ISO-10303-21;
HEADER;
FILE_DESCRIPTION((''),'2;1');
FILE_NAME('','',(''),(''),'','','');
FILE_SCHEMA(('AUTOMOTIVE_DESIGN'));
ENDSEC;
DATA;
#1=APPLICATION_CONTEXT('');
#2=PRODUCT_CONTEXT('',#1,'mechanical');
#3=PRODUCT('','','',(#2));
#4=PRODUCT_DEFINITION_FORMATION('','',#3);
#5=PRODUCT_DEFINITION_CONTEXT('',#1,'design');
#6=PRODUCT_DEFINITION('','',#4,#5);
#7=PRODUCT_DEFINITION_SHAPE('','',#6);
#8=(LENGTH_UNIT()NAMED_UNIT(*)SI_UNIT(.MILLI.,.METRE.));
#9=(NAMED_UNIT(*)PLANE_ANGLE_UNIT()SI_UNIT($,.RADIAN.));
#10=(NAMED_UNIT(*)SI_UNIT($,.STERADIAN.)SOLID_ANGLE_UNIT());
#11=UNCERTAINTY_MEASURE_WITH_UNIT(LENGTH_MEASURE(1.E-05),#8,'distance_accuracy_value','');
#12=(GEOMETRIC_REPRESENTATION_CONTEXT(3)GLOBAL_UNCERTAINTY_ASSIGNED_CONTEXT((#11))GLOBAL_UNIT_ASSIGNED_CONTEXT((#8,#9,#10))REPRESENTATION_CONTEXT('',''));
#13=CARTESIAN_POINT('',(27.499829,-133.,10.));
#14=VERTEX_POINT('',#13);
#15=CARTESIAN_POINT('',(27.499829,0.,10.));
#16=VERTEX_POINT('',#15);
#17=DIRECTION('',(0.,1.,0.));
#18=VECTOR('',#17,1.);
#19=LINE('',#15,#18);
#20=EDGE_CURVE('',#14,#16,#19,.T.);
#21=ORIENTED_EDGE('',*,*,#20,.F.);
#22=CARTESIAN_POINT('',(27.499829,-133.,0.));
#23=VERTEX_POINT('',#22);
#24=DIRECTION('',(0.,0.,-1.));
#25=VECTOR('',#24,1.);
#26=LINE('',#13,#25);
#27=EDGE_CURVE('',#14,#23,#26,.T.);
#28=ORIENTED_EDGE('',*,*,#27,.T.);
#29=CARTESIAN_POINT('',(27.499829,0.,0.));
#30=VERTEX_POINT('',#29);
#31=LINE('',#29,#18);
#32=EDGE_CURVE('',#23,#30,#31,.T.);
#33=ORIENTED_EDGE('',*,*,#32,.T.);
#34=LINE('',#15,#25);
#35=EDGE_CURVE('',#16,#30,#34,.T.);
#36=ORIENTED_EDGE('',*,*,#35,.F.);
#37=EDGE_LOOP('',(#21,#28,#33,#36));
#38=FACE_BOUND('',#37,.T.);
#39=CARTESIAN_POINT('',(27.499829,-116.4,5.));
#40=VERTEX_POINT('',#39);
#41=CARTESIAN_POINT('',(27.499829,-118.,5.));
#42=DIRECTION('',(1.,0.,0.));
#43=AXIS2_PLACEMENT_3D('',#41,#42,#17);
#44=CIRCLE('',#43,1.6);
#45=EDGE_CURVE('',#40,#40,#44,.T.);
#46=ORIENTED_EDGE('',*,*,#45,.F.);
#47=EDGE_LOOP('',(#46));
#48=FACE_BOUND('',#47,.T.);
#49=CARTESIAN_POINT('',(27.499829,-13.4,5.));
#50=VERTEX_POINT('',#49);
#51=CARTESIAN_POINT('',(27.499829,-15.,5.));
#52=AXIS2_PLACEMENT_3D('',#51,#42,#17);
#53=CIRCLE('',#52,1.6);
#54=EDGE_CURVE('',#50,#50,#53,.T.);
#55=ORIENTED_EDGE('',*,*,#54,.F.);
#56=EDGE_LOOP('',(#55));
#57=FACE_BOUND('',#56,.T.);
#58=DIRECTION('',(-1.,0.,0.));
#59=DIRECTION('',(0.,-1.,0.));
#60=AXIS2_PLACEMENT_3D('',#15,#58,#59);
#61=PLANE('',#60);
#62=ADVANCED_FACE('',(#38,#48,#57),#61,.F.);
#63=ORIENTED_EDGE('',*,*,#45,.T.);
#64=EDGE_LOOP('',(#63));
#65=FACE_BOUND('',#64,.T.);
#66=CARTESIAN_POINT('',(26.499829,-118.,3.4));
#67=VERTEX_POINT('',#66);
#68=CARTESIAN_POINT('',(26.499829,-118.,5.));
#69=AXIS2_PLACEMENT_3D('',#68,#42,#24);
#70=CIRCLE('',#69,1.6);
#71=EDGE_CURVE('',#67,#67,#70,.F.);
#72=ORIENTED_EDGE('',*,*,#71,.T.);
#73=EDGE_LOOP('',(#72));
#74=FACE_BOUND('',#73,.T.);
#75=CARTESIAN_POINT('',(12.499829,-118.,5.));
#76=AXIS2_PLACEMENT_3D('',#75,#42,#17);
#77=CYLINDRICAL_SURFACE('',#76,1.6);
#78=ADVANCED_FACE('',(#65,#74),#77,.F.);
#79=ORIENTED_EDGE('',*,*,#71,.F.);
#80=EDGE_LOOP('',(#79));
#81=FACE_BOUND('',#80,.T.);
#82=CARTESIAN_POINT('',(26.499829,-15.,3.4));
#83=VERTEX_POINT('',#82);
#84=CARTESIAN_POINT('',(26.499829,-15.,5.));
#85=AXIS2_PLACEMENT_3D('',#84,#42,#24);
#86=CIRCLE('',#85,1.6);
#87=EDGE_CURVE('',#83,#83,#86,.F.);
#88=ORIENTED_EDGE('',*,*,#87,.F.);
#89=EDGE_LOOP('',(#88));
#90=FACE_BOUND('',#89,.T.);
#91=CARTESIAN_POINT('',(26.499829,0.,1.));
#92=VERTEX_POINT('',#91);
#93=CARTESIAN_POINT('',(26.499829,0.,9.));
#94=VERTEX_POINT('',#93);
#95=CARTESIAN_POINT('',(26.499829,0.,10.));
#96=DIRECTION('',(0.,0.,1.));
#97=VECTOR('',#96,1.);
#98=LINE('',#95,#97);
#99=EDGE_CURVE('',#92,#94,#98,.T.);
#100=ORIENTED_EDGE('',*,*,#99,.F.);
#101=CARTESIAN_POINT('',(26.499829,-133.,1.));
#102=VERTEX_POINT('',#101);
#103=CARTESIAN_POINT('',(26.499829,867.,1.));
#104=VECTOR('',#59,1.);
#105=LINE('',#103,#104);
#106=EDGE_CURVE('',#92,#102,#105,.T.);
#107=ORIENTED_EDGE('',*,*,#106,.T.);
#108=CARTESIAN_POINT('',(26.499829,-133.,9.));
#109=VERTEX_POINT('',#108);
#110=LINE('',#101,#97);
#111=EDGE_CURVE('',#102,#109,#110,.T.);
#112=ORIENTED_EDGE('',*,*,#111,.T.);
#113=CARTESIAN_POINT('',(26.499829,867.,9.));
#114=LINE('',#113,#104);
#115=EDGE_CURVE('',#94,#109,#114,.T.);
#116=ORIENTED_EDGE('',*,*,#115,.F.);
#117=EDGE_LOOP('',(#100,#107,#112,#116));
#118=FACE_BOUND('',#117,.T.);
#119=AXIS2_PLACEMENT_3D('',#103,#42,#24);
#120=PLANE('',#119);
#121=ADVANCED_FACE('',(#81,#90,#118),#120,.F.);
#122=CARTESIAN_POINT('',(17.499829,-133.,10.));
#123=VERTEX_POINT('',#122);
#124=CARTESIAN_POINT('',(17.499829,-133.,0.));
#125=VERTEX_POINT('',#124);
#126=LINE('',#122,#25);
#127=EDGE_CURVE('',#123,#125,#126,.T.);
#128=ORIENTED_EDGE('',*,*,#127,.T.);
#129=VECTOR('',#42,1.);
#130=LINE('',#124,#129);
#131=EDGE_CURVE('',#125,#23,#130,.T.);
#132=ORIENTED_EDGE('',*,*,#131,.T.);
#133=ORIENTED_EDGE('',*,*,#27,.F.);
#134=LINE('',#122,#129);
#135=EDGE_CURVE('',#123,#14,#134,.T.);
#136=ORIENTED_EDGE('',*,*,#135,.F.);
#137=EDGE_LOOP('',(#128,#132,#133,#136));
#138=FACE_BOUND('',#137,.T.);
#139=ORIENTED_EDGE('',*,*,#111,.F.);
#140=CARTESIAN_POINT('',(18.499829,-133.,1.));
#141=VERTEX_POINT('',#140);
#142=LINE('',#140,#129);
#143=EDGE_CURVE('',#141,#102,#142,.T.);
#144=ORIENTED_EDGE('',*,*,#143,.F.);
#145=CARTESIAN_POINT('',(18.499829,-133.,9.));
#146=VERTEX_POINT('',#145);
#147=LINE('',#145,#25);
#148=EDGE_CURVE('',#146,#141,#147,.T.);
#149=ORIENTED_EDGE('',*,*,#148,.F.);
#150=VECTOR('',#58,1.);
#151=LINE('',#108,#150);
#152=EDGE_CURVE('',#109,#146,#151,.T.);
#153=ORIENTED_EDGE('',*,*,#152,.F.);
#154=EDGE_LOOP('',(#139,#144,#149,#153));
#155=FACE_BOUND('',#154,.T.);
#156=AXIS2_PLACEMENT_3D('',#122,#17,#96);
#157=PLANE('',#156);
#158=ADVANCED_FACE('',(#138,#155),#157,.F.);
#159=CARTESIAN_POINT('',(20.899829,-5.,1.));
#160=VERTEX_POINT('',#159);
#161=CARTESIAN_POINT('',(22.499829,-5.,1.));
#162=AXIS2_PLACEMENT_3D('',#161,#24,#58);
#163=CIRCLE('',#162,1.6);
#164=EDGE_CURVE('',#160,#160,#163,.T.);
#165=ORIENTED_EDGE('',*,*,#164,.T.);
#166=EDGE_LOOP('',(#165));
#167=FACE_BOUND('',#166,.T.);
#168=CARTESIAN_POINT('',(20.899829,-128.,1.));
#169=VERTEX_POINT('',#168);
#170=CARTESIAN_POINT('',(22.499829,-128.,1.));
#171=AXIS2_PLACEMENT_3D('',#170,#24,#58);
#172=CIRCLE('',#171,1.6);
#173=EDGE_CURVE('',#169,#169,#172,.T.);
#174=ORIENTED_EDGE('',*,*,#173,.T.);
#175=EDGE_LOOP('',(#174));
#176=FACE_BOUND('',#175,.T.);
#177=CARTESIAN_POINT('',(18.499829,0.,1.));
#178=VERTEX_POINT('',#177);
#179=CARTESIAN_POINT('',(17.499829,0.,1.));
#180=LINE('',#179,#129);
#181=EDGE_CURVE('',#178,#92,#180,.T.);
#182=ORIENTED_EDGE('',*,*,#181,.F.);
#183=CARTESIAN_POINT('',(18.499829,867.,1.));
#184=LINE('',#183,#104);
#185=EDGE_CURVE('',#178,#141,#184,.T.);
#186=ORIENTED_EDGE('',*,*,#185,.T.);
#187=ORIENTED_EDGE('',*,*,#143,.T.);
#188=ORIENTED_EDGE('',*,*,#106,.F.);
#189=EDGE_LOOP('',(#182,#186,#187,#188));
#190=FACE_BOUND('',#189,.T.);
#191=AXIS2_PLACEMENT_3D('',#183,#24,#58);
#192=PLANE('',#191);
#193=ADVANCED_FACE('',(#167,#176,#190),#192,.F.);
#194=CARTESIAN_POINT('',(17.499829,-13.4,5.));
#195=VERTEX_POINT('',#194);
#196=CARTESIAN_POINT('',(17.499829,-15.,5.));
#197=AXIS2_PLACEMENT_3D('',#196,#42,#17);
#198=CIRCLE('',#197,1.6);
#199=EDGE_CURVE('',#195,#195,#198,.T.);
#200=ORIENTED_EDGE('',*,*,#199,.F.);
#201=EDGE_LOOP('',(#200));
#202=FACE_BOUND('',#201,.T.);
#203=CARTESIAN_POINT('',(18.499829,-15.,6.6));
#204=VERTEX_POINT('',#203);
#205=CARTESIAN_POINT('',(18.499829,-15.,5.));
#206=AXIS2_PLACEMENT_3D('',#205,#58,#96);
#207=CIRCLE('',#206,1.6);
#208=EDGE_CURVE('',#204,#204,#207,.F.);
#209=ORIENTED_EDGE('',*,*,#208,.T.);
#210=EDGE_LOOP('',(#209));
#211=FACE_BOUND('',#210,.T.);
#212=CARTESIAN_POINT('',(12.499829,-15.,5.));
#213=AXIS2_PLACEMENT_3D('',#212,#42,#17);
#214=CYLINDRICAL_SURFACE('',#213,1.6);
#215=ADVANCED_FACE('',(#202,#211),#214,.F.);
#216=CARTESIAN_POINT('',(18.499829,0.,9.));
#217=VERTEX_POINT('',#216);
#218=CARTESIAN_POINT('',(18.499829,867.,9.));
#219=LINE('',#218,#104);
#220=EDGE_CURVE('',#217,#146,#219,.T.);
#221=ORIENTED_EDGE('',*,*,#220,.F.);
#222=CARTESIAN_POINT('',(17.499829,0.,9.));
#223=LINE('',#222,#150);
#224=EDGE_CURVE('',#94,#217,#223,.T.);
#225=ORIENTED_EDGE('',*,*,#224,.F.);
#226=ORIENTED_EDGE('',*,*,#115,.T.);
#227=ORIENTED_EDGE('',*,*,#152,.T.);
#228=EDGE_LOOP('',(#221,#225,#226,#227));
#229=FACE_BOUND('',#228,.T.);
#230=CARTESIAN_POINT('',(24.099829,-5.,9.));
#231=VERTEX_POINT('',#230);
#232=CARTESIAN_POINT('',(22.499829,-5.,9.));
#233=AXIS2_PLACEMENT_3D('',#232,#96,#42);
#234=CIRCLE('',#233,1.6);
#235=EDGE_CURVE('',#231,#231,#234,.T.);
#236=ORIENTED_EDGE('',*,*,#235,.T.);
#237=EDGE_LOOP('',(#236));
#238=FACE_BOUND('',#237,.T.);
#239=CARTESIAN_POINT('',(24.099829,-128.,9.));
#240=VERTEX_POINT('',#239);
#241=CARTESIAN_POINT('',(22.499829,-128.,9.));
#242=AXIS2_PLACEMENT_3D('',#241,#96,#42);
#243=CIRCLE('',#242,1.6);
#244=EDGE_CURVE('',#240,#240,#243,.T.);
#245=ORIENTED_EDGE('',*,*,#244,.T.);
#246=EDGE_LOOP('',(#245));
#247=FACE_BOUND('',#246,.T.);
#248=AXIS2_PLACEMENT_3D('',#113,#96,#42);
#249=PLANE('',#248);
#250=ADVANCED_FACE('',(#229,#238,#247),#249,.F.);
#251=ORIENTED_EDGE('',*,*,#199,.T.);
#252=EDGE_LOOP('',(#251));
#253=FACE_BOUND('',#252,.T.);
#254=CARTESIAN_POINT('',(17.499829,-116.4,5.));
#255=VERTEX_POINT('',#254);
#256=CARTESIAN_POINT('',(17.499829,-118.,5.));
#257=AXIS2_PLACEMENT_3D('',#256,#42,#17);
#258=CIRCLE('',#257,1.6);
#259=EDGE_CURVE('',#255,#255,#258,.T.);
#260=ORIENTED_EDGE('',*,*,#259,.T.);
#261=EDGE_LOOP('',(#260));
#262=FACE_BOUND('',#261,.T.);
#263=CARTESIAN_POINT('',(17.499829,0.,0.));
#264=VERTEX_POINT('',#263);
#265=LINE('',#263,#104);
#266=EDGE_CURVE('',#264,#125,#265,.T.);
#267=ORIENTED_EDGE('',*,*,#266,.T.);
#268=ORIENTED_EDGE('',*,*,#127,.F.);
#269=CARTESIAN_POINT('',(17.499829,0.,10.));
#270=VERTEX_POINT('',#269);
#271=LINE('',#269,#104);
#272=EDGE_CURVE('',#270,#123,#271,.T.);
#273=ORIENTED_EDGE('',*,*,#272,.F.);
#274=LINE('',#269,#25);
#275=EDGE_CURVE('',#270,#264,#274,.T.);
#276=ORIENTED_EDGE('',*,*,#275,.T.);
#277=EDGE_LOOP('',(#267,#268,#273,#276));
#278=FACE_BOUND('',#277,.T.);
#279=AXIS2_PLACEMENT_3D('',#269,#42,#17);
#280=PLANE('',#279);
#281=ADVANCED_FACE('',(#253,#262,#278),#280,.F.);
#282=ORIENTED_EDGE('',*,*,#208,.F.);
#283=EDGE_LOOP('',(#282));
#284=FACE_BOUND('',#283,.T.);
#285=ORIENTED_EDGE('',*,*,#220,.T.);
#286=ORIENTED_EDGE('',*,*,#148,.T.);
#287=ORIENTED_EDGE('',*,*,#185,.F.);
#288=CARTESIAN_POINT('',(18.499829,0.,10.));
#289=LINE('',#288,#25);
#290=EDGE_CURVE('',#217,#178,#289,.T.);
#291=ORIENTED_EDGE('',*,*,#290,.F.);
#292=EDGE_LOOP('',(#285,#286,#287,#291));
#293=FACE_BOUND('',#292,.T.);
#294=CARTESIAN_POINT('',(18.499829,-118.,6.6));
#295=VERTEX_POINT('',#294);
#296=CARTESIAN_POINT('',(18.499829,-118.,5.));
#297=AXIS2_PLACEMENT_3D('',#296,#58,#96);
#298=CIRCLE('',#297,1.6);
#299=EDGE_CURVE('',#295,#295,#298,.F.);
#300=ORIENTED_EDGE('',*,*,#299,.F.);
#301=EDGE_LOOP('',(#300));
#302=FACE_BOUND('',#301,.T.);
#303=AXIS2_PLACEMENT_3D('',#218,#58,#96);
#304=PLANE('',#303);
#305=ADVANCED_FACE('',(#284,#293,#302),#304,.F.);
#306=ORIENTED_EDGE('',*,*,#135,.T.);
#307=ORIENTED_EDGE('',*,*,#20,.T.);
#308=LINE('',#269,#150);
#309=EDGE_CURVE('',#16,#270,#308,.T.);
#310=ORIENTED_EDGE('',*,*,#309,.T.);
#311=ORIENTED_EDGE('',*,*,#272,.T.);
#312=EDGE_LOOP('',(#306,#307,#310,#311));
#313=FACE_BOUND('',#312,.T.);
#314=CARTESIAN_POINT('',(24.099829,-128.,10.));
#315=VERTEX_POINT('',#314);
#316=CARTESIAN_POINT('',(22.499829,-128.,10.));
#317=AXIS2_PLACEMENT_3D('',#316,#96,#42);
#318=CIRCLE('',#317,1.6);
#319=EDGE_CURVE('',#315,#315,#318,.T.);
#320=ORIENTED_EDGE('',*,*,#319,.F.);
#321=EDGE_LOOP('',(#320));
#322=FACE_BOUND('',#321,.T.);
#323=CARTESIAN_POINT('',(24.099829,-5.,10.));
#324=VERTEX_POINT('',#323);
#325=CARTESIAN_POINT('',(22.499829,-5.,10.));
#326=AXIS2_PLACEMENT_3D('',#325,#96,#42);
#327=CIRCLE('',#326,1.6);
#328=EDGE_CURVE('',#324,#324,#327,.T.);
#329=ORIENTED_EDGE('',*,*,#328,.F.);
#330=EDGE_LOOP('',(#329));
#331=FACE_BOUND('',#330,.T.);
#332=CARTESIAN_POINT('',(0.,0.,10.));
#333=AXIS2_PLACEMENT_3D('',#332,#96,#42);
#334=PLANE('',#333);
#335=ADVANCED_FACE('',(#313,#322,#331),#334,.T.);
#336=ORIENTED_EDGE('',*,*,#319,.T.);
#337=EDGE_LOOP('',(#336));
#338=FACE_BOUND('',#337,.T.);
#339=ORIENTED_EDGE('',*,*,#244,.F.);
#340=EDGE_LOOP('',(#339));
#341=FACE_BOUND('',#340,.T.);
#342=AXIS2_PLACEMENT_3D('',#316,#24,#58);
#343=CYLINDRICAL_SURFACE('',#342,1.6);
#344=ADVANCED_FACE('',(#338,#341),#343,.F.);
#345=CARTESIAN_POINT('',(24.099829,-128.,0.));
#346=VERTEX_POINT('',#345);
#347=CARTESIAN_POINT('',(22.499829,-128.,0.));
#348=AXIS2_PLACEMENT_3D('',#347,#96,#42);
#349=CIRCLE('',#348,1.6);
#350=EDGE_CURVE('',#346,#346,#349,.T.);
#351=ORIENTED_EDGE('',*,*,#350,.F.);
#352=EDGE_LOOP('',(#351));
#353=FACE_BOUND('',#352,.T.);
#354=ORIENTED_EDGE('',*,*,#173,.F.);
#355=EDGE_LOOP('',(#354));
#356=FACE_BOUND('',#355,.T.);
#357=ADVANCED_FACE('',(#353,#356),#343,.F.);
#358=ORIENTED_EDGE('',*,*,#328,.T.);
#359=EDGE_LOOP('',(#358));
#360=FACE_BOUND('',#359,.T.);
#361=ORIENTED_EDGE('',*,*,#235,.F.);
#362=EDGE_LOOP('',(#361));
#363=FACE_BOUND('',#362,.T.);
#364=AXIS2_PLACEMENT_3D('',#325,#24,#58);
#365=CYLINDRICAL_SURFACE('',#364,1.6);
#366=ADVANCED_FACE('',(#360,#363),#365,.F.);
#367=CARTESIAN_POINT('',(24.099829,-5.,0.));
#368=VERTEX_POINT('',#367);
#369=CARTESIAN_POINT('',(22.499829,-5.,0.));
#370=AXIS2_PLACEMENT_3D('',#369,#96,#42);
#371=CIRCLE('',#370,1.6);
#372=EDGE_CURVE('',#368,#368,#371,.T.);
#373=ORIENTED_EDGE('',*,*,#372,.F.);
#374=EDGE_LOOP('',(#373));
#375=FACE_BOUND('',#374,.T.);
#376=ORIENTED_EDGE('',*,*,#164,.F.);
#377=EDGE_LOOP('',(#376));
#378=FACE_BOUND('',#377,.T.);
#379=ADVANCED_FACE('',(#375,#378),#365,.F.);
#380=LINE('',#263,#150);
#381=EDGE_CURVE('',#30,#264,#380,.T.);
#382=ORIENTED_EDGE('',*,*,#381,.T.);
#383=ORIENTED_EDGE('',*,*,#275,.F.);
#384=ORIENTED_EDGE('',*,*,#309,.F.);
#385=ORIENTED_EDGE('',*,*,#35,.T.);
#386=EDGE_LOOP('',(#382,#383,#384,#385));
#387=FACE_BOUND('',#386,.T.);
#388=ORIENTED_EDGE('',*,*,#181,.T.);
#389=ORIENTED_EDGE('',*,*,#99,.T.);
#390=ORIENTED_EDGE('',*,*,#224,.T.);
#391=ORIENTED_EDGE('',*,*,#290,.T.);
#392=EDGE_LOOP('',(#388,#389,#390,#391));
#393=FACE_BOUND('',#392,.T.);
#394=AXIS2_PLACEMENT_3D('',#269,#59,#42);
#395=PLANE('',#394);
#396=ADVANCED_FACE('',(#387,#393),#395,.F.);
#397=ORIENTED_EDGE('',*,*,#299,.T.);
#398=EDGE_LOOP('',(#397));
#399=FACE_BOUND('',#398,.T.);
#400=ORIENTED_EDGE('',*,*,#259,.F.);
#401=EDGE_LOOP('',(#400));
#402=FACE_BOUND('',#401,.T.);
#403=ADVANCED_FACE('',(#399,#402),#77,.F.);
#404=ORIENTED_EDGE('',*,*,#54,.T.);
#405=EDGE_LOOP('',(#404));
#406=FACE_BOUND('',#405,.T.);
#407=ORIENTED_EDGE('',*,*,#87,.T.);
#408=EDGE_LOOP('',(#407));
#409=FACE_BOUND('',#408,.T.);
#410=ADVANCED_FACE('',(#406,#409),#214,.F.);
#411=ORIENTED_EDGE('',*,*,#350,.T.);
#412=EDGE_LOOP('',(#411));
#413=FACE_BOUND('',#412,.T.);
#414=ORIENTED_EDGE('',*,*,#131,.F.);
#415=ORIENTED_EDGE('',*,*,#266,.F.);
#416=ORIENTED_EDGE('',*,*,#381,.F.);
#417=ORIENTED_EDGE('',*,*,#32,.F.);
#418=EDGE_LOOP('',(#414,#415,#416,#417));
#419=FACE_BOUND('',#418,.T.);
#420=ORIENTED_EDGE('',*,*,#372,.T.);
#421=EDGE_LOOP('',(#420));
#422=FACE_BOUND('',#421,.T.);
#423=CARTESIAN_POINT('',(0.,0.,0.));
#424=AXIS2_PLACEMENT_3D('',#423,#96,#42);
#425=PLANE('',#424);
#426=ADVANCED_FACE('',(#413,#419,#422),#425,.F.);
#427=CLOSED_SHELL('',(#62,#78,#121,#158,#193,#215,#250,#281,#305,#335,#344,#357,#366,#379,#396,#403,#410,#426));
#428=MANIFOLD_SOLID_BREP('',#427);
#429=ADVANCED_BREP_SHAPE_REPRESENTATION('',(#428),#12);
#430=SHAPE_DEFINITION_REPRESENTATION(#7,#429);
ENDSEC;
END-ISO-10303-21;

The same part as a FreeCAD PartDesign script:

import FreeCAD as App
import Part
import Sketcher
from FreeCAD import Vector
Q = App.Units.Quantity


def add_polygon(sketch, points):
    """Adds a closed chain of lines whose ends are joined by coincident constraints."""
    first, n = sketch.GeometryCount, len(points)
    for a, b in zip(points, points[1:] + points[:1]):
        sketch.addGeometry(Part.LineSegment(App.Vector(*a, 0), App.Vector(*b, 0)), False)
    for i in range(n):
        sketch.addConstraint(Sketcher.Constraint("Coincident", first + i, 2, first + (i + 1) % n, 1))

doc = App.newDocument("Part")
body = doc.addObject("PartDesign::Body", "Body")

sketch1 = body.newObject("Sketcher::SketchObject", "Sketch")
sketch1.AttachmentSupport = (doc.getObject("XY_Plane"), [""])
sketch1.MapMode = "FlatFace"
add_polygon(sketch1, [(17.5, 0), (17.5, -133), (27.5, -133), (27.5, 0)])
sketch1.addGeometry(Part.Circle(Vector(22.5, -128, 0), Vector(0, 0, 1), 1.6), False)
sketch1.addGeometry(Part.Circle(Vector(22.5, -5, 0), Vector(0, 0, 1), 1.6), False)
sketch1.addConstraint([
    Sketcher.Constraint("Vertical", 0),
    Sketcher.Constraint("Horizontal", 1),
    Sketcher.Constraint("Vertical", 2),
    Sketcher.Constraint("Horizontal", 3),
    Sketcher.Constraint("Equal", 4, 5),
    Sketcher.Constraint("PointOnObject", 2, 2, -1),
    Sketcher.Constraint("Vertical", 4, 3, 5, 3),
    Sketcher.Constraint("Diameter", 4, Q("3.2 mm")),
    Sketcher.Constraint("DistanceX", 1, 1, 1, 2, Q("10 mm")),
    Sketcher.Constraint("DistanceY", 0, 2, 0, 1, Q("133 mm")),
    Sketcher.Constraint("DistanceY", 4, 3, -1, 1, Q("128 mm")),
    Sketcher.Constraint("DistanceY", 5, 3, -1, 1, Q("5 mm")),
    Sketcher.Constraint("DistanceX", 0, 2, 4, 3, Q("5 mm")),
    Sketcher.Constraint("DistanceX", -1, 1, 4, 3, Q("22.499829 mm")),
])
pad1 = body.newObject("PartDesign::Pad", "Pad")
pad1.Profile = sketch1
pad1.Length = 10

sketch2 = body.newObject("Sketcher::SketchObject", "Sketch001")
sketch2.AttachmentSupport = (doc.getObject("YZ_Plane"), [""])
sketch2.MapMode = "FlatFace"
sketch2.AttachmentOffset = App.Placement(Vector(0, 0, 27.499829), App.Rotation())
sketch2.addGeometry([
    Part.Circle(Vector(-118, 5, 0), Vector(0, 0, 1), 1.6),
    Part.Circle(Vector(-15, 5, 0), Vector(0, 0, 1), 1.6),
], False)
sketch2.addConstraint([
    Sketcher.Constraint("Equal", 0, 1),
    Sketcher.Constraint("Horizontal", 0, 3, 1, 3),
    Sketcher.Constraint("Diameter", 0, Q("3.2 mm")),
    Sketcher.Constraint("DistanceX", 0, 3, -1, 1, Q("118 mm")),
    Sketcher.Constraint("DistanceY", -1, 1, 0, 3, Q("5 mm")),
    Sketcher.Constraint("DistanceX", 1, 3, -1, 1, Q("15 mm")),
])
pocket1 = body.newObject("PartDesign::Pocket", "Pocket")
pocket1.Profile = sketch2
pocket1.Length = 15

sketch3 = body.newObject("Sketcher::SketchObject", "Sketch002")
sketch3.AttachmentSupport = (doc.getObject("XZ_Plane"), [""])
sketch3.MapMode = "FlatFace"
sketch3.AttachmentOffset = App.Placement(Vector(0, 0, 133), App.Rotation())
add_polygon(sketch3, [(18, 9), (18, 1), (26, 1), (26, 9)])
sketch3.addConstraint([
    Sketcher.Constraint("Vertical", 0),
    Sketcher.Constraint("Horizontal", 1),
    Sketcher.Constraint("Vertical", 2),
    Sketcher.Constraint("Horizontal", 3),
    Sketcher.Constraint("Equal", 3, 0),
    Sketcher.Constraint("DistanceX", 1, 1, 1, 2, Q("8 mm")),
    Sketcher.Constraint("DistanceY", -1, 1, 0, 2, Q("1 mm")),
    Sketcher.Constraint("DistanceX", -1, 1, 0, 2, Q("18.499829 mm")),
])
pocket2 = body.newObject("PartDesign::Pocket", "Pocket001")
pocket2.Profile = sketch3
pocket2.Length = 1000

doc.recompute()
